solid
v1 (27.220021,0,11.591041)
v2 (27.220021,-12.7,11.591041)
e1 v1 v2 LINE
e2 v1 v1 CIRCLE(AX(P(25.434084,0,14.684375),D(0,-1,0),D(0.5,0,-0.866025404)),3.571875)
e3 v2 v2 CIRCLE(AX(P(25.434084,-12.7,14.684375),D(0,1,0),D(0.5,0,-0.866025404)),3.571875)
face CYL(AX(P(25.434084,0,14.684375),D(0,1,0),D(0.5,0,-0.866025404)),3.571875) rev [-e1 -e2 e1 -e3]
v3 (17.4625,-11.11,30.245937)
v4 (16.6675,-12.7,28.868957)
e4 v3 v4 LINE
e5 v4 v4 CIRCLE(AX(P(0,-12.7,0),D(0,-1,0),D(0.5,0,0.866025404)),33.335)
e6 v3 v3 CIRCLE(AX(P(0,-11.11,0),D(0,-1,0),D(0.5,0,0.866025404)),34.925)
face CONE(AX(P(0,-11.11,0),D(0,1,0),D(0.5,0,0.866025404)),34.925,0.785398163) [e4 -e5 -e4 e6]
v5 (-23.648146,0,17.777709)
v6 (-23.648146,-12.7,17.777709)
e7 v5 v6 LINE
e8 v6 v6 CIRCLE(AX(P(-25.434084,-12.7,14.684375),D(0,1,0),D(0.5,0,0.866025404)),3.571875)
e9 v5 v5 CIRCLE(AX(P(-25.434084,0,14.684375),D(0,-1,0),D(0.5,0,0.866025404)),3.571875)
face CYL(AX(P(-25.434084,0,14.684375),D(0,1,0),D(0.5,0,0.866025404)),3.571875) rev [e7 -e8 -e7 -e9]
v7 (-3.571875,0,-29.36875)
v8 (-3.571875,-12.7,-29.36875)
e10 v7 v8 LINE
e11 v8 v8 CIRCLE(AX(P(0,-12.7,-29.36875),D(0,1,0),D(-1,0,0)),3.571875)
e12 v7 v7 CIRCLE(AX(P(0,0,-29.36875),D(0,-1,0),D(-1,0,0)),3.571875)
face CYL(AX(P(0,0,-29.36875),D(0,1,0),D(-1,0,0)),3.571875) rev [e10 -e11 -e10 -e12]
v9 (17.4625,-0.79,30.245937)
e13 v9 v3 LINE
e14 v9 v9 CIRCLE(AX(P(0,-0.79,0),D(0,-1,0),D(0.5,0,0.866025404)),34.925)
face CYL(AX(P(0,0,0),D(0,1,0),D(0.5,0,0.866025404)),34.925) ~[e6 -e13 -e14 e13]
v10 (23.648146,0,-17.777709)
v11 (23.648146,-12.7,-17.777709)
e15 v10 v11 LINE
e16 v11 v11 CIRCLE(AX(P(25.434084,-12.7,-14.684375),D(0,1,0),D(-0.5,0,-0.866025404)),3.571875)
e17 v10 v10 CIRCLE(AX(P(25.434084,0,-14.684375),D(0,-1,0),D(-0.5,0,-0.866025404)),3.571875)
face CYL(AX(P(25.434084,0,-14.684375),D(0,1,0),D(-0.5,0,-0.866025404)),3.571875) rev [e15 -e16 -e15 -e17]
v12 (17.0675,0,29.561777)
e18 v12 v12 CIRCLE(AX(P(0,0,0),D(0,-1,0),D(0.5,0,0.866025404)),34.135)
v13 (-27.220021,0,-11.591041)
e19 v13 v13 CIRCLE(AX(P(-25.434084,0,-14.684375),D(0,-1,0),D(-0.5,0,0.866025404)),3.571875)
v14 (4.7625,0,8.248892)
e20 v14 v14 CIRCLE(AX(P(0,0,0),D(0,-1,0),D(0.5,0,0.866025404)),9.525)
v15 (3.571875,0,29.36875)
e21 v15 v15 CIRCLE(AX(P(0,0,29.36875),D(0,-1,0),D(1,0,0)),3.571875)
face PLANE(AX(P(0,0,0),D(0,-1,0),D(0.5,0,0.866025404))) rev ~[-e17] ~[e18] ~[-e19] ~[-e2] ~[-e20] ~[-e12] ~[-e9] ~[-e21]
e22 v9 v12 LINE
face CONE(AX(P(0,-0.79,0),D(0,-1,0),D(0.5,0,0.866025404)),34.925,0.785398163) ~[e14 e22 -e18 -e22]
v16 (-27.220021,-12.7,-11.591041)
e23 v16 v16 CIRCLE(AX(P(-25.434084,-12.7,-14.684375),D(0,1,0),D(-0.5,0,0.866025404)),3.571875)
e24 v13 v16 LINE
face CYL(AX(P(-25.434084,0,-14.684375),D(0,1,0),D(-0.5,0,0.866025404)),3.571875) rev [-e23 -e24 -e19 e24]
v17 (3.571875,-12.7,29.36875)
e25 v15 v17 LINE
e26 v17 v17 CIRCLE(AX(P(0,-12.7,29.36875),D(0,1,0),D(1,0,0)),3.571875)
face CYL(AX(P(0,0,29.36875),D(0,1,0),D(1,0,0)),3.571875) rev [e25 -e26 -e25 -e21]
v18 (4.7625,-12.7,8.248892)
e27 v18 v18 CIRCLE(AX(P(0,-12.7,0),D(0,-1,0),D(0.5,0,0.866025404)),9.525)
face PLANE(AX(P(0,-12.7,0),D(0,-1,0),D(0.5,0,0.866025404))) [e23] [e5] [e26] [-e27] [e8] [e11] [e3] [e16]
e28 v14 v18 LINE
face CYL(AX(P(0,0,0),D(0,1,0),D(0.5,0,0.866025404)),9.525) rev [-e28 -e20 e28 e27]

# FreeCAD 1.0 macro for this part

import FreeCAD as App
import Part
import Sketcher
from FreeCAD import Vector
Q = App.Units.Quantity


def edges_at(feature, points):
    """Names of the edges that pass closest to the given points."""
    edges = feature.Shape.Edges
    near = lambda p: min(range(len(edges)), key=lambda i: edges[i].distToShape(Part.Vertex(*p))[0])
    return sorted({f"Edge{near(p) + 1}" for p in points})

doc = App.newDocument("Part")
body = doc.addObject("PartDesign::Body", "Body")

sketch1 = doc.addObject("Sketcher::SketchObject", "Sketch")
body.addObject(sketch1)
sketch1.AttachmentSupport = (doc.XZ_Plane, [""])
sketch1.MapMode = "FlatFace"
sketch1.addGeometry(Part.Circle(Vector(0, 29.36875, 0), Vector(0, 0, 1), 3.571875), False)
sketch1.addConstraint(Sketcher.Constraint("PointOnObject", 0, 3, -2))
sketch1.addConstraint(Sketcher.Constraint("Diameter", 0, Q("0.28125 in")))
sketch1.addConstraint(Sketcher.Constraint("DistanceY", -1, 1, 0, 3, Q("1.15625 in")))
pad1 = doc.addObject("PartDesign::Pad", "Pad")
body.addObject(pad1)
pad1.Profile = sketch1
pad1.Length = 13
body2 = doc.addObject("PartDesign::Body", "Body001")

sketch2 = doc.addObject("Sketcher::SketchObject", "Sketch001")
body2.addObject(sketch2)
sketch2.AttachmentSupport = (doc.getObject("XZ_Plane001"), [""])
sketch2.MapMode = "FlatFace"
sketch2.addGeometry(Part.Circle(Vector(0, 0, 0), Vector(0, 0, 1), 34.925), False)
sketch2.addGeometry(Part.Circle(Vector(0, 0, 0), Vector(0, 0, 1), 9.525), False)
sketch2.addConstraint(Sketcher.Constraint("Coincident", 0, 3, -1, 1))
sketch2.addConstraint(Sketcher.Constraint("Coincident", 1, 3, -1, 1))
sketch2.addConstraint(Sketcher.Constraint("Diameter", 0, Q("2.75 in")))
sketch2.addConstraint(Sketcher.Constraint("Diameter", 1, Q("0.75 in")))
pad2 = doc.addObject("PartDesign::Pad", "Pad001")
body2.addObject(pad2)
pad2.Profile = sketch2
pad2.Length = Q("0.5 in")
doc.recompute()

body3 = doc.addObject("PartDesign::Body", "Body002")
body3.BaseFeature = body
boolean = doc.addObject("PartDesign::Boolean", "Boolean")
body2.addObject(boolean)
boolean.Type = "Cut"
boolean.addObjects([body3])
doc.recompute()
body4 = doc.addObject("PartDesign::Body", "Body003")
doc.recompute()

body2.Placement = App.Placement(Vector(0, 0, 0), App.Rotation(Vector(0, 1, 0), 60))
boolean2 = doc.addObject("PartDesign::Boolean", "Boolean001")
body4.addObject(boolean2)
boolean2.Type = "Fuse"
boolean2.addObjects([body2])
doc.recompute()

body5 = doc.addObject("PartDesign::Body", "Body004")
body5.BaseFeature = body
boolean3 = doc.addObject("PartDesign::Boolean", "Boolean002")
body4.addObject(boolean3)
boolean3.Type = "Cut"
boolean3.addObjects([body5])
doc.recompute()
body6 = doc.addObject("PartDesign::Body", "Body005")
doc.recompute()

body4.Placement = App.Placement(Vector(0, 0, 0), App.Rotation(Vector(0, 1, 0), 60))
boolean4 = doc.addObject("PartDesign::Boolean", "Boolean003")
body6.addObject(boolean4)
boolean4.Type = "Fuse"
boolean4.addObjects([body4])
doc.recompute()

body7 = doc.addObject("PartDesign::Body", "Body006")
body7.BaseFeature = body
boolean5 = doc.addObject("PartDesign::Boolean", "Boolean004")
body6.addObject(boolean5)
boolean5.Type = "Cut"
boolean5.addObjects([body7])
doc.recompute()
body8 = doc.addObject("PartDesign::Body", "Body007")
doc.recompute()

body6.Placement = App.Placement(Vector(0, 0, 0), App.Rotation(Vector(0, 1, 0), 60))
boolean6 = doc.addObject("PartDesign::Boolean", "Boolean005")
body8.addObject(boolean6)
boolean6.Type = "Fuse"
boolean6.addObjects([body6])
doc.recompute()

body9 = doc.addObject("PartDesign::Body", "Body008")
body9.BaseFeature = body
boolean7 = doc.addObject("PartDesign::Boolean", "Boolean006")
body8.addObject(boolean7)
boolean7.Type = "Cut"
boolean7.addObjects([body9])
doc.recompute()
body10 = doc.addObject("PartDesign::Body", "Body009")
doc.recompute()

body8.Placement = App.Placement(Vector(0, 0, 0), App.Rotation(Vector(0, 1, 0), 60))
boolean8 = doc.addObject("PartDesign::Boolean", "Boolean007")
body10.addObject(boolean8)
boolean8.Type = "Fuse"
boolean8.addObjects([body8])
doc.recompute()

body11 = doc.addObject("PartDesign::Body", "Body010")
body11.BaseFeature = body
boolean9 = doc.addObject("PartDesign::Boolean", "Boolean008")
body10.addObject(boolean9)
boolean9.Type = "Cut"
boolean9.addObjects([body11])
doc.recompute()
body12 = doc.addObject("PartDesign::Body", "Body011")
doc.recompute()

body10.Placement = App.Placement(Vector(0, 0, 0), App.Rotation(Vector(0, 1, 0), 60))
boolean10 = doc.addObject("PartDesign::Boolean", "Boolean009")
body12.addObject(boolean10)
boolean10.Type = "Fuse"
boolean10.addObjects([body10])
doc.recompute()

boolean11 = doc.addObject("PartDesign::Boolean", "Boolean010")
body12.addObject(boolean11)
boolean11.Type = "Cut"
boolean11.addObjects([body])
doc.recompute()

chamfer = doc.addObject("PartDesign::Chamfer", "Chamfer")
body12.addObject(chamfer)
chamfer.Base = (boolean11, edges_at(boolean11, [(-17.462, -12.7, -30.246)]))
chamfer.Size = 1.59
doc.recompute()

chamfer2 = doc.addObject("PartDesign::Chamfer", "Chamfer001")
body12.addObject(chamfer2)
chamfer2.Base = (chamfer, edges_at(chamfer, [(-17.462, 0, -30.246)]))
chamfer2.Size = 0.79

doc.recompute()
